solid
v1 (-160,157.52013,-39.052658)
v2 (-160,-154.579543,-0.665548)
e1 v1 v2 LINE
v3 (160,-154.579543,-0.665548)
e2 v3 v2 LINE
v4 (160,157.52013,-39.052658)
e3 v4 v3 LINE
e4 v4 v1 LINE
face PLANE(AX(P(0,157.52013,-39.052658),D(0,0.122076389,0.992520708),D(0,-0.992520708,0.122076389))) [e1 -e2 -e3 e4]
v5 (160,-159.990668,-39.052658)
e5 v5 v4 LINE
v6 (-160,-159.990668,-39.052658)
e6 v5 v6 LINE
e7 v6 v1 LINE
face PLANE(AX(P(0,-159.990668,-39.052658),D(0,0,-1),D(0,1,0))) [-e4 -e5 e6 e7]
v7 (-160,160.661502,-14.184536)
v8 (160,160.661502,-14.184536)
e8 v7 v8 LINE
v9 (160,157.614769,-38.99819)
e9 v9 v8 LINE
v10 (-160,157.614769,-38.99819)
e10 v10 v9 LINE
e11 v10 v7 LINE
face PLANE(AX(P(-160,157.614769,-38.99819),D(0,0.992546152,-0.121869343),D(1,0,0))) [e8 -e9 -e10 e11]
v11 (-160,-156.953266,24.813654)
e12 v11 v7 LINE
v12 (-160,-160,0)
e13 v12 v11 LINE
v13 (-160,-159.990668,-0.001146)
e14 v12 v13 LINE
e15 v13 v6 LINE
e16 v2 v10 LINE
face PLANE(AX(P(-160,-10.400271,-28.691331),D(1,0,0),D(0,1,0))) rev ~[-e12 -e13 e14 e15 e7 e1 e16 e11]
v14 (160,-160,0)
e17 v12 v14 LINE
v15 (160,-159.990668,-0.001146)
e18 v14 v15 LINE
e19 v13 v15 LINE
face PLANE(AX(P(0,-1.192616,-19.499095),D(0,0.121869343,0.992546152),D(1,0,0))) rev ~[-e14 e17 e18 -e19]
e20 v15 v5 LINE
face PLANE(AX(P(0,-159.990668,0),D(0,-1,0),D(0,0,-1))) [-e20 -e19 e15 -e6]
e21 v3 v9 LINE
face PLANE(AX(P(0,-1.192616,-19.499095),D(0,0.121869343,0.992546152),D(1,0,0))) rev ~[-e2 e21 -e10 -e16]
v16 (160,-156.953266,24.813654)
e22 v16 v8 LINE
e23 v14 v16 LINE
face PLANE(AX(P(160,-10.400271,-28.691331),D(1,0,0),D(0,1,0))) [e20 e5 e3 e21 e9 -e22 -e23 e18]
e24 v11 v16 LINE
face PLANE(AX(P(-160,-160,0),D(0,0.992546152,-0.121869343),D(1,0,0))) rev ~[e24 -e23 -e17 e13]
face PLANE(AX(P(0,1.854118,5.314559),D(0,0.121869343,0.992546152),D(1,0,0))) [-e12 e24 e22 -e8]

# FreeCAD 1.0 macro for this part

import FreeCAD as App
import Part
import Sketcher
from FreeCAD import Vector
Q = App.Units.Quantity

doc = App.newDocument("Part")
body = doc.addObject("PartDesign::Body", "Body")

# Sketch on XY plane
sketch1 = body.newObject("Sketcher::SketchObject", "Sketch")
sketch1.AttachmentSupport = (doc.getObject("XY_Plane"), [""])
sketch1.MapMode = "FlatFace"
sketch1.addGeometry(Part.LineSegment(Vector(-160, 160, 0), Vector(-160, -160, 0)), False)
sketch1.addGeometry(Part.LineSegment(Vector(-160, -160, 0), Vector(160, -160, 0)), False)
sketch1.addGeometry(Part.LineSegment(Vector(160, -160, 0), Vector(160, 160, 0)), False)
sketch1.addGeometry(Part.LineSegment(Vector(160, 160, 0), Vector(-160, 160, 0)), False)
sketch1.addConstraint(Sketcher.Constraint("Coincident", 0, 2, 1, 1))
sketch1.addConstraint(Sketcher.Constraint("Coincident", 1, 2, 2, 1))
sketch1.addConstraint(Sketcher.Constraint("Coincident", 2, 2, 3, 1))
sketch1.addConstraint(Sketcher.Constraint("Coincident", 3, 2, 0, 1))
sketch1.addConstraint(Sketcher.Constraint("Vertical", 0))
sketch1.addConstraint(Sketcher.Constraint("Horizontal", 1))
sketch1.addConstraint(Sketcher.Constraint("Vertical", 2))
sketch1.addConstraint(Sketcher.Constraint("Horizontal", 3))
sketch1.addConstraint(Sketcher.Constraint("Symmetric", 0, 2, 2, 2, -1, 1))
sketch1.addConstraint(Sketcher.Constraint("Equal", 3, 0))
sketch1.addConstraint(Sketcher.Constraint("DistanceX", 1, 1, 1, 2, Q("320 mm")))
pad1 = body.newObject("PartDesign::Pad", "Pad")
pad1.Profile = sketch1
pad1.Length = 25
body2 = doc.addObject("PartDesign::Body", "Body001")
doc.recompute()

body.Placement = App.Placement(Vector(0, -1.192616, -19.499095), App.Rotation(Vector(-1, 0, 0), 7))
boolean = body2.newObject("PartDesign::Boolean", "Boolean")
boolean.Type = "Fuse"
boolean.addObjects([body])

# Sketch on YZ plane
sketch2 = body2.newObject("Sketcher::SketchObject", "Sketch001")
sketch2.AttachmentSupport = (doc.getObject("YZ_Plane001"), [""])
sketch2.MapMode = "FlatFace"
sketch2.addGeometry(Part.LineSegment(Vector(158, -39, 0), Vector(-160, 0, 0)), False)
sketch2.addGeometry(Part.LineSegment(Vector(-160, 0, 0), Vector(-160, -39, 0)), False)
sketch2.addGeometry(Part.LineSegment(Vector(-160, -39, 0), Vector(158, -39, 0)), False)
sketch2.addConstraint(Sketcher.Constraint("Coincident", 0, 2, 1, 1))
sketch2.addConstraint(Sketcher.Constraint("Coincident", 1, 2, 2, 1))
sketch2.addConstraint(Sketcher.Constraint("Coincident", 2, 2, 0, 1))
sketch2.addConstraint(Sketcher.Constraint("Vertical", 1))
sketch2.addConstraint(Sketcher.Constraint("Horizontal", 2))
sketch2.addConstraint(Sketcher.Constraint("PointOnObject", 0, 2, -1))
sketch2.addConstraint(Sketcher.Constraint("DistanceX", 2, 1, 2, 2, Q("317.510798 mm")))
sketch2.addConstraint(Sketcher.Constraint("Distance", 0, Q("319.903449 mm")))
sketch2.addConstraint(Sketcher.Constraint("DistanceX", 0, 2, -1, 1, Q("159.990668 mm")))
pad2 = body2.newObject("PartDesign::Pad", "Pad001")
pad2.Profile = sketch2
pad2.Length = 320
pad2.Midplane = True

doc.recompute()
